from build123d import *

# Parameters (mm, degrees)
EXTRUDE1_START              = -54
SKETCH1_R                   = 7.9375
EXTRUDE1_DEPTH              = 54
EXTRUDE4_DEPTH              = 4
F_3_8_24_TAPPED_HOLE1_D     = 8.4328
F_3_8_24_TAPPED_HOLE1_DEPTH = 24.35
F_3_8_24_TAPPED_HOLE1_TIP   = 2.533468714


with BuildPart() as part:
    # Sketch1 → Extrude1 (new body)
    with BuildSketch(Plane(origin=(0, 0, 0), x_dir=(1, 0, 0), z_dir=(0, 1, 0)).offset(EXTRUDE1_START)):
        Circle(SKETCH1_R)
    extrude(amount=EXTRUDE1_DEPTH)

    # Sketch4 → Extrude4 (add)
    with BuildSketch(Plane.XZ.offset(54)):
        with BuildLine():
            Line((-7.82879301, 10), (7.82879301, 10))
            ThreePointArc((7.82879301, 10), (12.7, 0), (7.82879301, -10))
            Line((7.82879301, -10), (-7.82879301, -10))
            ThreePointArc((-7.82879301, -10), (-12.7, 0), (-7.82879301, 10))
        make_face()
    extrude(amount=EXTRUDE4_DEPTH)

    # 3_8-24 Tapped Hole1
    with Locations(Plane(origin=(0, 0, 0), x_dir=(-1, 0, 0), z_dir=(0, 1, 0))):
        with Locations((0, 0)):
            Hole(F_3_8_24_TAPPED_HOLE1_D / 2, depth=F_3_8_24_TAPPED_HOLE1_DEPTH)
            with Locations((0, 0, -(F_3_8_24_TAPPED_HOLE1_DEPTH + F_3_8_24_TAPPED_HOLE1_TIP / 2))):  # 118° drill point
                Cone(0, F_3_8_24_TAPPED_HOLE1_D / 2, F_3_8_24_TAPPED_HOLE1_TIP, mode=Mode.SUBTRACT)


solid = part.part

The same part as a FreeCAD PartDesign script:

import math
import FreeCAD as App
import Part
import Sketcher
from FreeCAD import Vector
Q = App.Units.Quantity

doc = App.newDocument("Part")
body = doc.addObject("PartDesign::Body", "Body")

sketch1 = body.newObject("Sketcher::SketchObject", "Sketch")
sketch1.AttachmentSupport = (doc.getObject("XZ_Plane"), [""])
sketch1.MapMode = "FlatFace"
sketch1.AttachmentOffset = App.Placement(Vector(0, 0, 54), App.Rotation())
sketch1.addGeometry(Part.Circle(Vector(0, 0, 0), Vector(0, 0, 1), 8), False)
sketch1.addConstraint(Sketcher.Constraint("Coincident", 0, 3, -1, 1))
sketch1.addConstraint(Sketcher.Constraint("Diameter", 0, Q("0.625 in")))
pad1 = body.newObject("PartDesign::Pad", "Pad")
pad1.Profile = sketch1
pad1.Length = 54
pad1.Reversed = True

sketch2 = body.newObject("Sketcher::SketchObject", "Sketch001")
sketch2.AttachmentSupport = (doc.getObject("XZ_Plane"), [""])
sketch2.MapMode = "FlatFace"
sketch2.AttachmentOffset = App.Placement(Vector(0, 0, 54), App.Rotation())
sketch2.addGeometry(Part.LineSegment(Vector(8, 10, 0), Vector(-8, 10, 0)), False)
sketch2.addGeometry(Part.ArcOfCircle(Part.Circle(Vector(0, 0, 0), Vector(0, 0, 1), 13), math.radians(128), math.radians(232)), False)
sketch2.addGeometry(Part.LineSegment(Vector(-8, -10, 0), Vector(8, -10, 0)), False)
sketch2.addGeometry(Part.ArcOfCircle(Part.Circle(Vector(0, 0, 0), Vector(0, 0, 1), 13), math.radians(-52), math.radians(52)), False)
sketch2.addConstraint(Sketcher.Constraint("Coincident", 0, 2, 1, 1))
sketch2.addConstraint(Sketcher.Constraint("Coincident", 1, 2, 2, 1))
sketch2.addConstraint(Sketcher.Constraint("Coincident", 2, 2, 3, 1))
sketch2.addConstraint(Sketcher.Constraint("Coincident", 3, 2, 0, 1))
sketch2.addConstraint(Sketcher.Constraint("Horizontal", 0))
sketch2.addConstraint(Sketcher.Constraint("Horizontal", 2))
sketch2.addConstraint(Sketcher.Constraint("Coincident", 1, 3, -1, 1))
sketch2.addConstraint(Sketcher.Constraint("Coincident", 3, 3, -1, 1))
sketch2.addConstraint(Sketcher.Constraint("Equal", 1, 3))
sketch2.addConstraint(Sketcher.Constraint("Vertical", 0, 2, 1, 2))
sketch2.addConstraint(Sketcher.Constraint("Radius", 1, Q("0.5 in")))
sketch2.addConstraint(Sketcher.Constraint("DistanceY", -1, 1, 0, 2, 10.0))
pad2 = body.newObject("PartDesign::Pad", "Pad001")
pad2.Profile = sketch2
pad2.Length = 4

sketch3 = body.newObject("Sketcher::SketchObject", "Sketch002")
sketch3.AttachmentSupport = (doc.getObject("XZ_Plane"), [""])
sketch3.MapMode = "FlatFace"
sketch3.addGeometry(Part.Circle(Vector(0, 0, 0), Vector(0, 0, 1), 4.2), False)
sketch3.addConstraint(Sketcher.Constraint("Coincident", 0, 3, -1, 1))
sketch3.addConstraint(Sketcher.Constraint("Diameter", 0, Q("0.332 in")))
doc.recompute()
hole = body.newObject("PartDesign::Hole", "Hole")
hole.Profile = sketch3
hole.ThreadType = "None"
hole.Diameter = Q("0.332 in")
hole.DepthType = "Dimension"
hole.Depth = 24.35
hole.DrillPoint = "Angled"
hole.DrillPointAngle = 118
hole.Reversed = True

doc.recompute()
